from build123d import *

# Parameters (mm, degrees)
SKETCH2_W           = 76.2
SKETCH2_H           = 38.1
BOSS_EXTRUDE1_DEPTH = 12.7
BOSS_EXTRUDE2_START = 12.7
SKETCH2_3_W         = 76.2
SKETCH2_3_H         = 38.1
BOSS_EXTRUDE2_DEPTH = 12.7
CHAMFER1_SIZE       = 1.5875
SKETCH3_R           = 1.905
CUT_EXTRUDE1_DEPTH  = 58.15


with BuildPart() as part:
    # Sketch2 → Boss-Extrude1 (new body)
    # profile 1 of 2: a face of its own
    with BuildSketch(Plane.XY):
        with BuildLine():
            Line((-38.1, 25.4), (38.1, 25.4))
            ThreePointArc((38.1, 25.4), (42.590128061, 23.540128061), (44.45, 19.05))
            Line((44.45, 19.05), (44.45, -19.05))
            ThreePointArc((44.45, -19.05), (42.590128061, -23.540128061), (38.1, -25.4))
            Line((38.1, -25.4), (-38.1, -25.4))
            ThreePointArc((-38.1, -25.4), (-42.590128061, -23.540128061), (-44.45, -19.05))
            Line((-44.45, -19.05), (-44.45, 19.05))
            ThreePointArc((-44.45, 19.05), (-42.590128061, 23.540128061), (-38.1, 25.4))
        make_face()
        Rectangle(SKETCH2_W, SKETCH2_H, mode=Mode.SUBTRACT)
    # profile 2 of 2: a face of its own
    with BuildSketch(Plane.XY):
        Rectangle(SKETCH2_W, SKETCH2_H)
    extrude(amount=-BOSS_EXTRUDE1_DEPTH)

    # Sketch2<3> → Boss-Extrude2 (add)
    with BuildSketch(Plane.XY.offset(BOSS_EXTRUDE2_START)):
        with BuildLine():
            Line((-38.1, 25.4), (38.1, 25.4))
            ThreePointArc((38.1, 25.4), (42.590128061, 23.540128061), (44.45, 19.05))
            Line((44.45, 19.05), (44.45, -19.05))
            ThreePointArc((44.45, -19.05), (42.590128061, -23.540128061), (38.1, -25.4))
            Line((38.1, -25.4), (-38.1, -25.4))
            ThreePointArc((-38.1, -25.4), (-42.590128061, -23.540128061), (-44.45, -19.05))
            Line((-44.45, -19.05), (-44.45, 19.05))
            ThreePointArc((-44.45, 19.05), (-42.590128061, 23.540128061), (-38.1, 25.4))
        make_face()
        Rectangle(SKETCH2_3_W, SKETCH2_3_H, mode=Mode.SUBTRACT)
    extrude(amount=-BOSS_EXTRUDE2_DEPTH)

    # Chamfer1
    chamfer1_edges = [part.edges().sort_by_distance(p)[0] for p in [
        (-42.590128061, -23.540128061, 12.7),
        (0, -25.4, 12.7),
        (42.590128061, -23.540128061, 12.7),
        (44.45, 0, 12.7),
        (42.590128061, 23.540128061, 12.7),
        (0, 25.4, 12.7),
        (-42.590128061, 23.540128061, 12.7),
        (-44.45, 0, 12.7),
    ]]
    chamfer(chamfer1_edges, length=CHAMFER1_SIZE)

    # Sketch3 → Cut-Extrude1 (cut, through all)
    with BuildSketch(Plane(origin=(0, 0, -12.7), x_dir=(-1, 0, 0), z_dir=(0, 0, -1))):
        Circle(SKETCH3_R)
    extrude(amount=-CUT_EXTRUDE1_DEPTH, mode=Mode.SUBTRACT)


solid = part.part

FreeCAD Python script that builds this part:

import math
import FreeCAD as App
import Part
import Sketcher
from FreeCAD import Vector
Q = App.Units.Quantity


def edges_at(feature, points):
    """Names of the edges that pass closest to the given points."""
    edges = feature.Shape.Edges
    near = lambda p: min(range(len(edges)), key=lambda i: edges[i].distToShape(Part.Vertex(*p))[0])
    return sorted({f"Edge{near(p) + 1}" for p in points})

doc = App.newDocument("Part")
body = doc.addObject("PartDesign::Body", "Body")

# Sketch on XY plane
sketch1 = doc.addObject("Sketcher::SketchObject", "Sketch")
body.addObject(sketch1)
sketch1.AttachmentSupport = (doc.XY_Plane, [""])
sketch1.MapMode = "FlatFace"
sketch1.addGeometry([
    Part.LineSegment(Vector(38, 25, 0), Vector(-38, 25, 0)),  # 0
    Part.ArcOfCircle(Part.Circle(Vector(-38, 19, 0), Vector(0, 0, 1), 6), math.radians(90), math.radians(180)),  # 1
    Part.LineSegment(Vector(-44, 19, 0), Vector(-44, -19, 0)),  # 2
    Part.ArcOfCircle(Part.Circle(Vector(-38, -19, 0), Vector(0, 0, 1), 6), math.radians(180), math.radians(270)),  # 3
    Part.LineSegment(Vector(-38, -25, 0), Vector(38, -25, 0)),  # 4
    Part.ArcOfCircle(Part.Circle(Vector(38, -19, 0), Vector(0, 0, 1), 6), math.radians(-90), math.radians(0)),  # 5
    Part.LineSegment(Vector(44, -19, 0), Vector(44, 19, 0)),  # 6
    Part.ArcOfCircle(Part.Circle(Vector(38, 19, 0), Vector(0, 0, 1), 6), math.radians(0), math.radians(90)),  # 7
], False)
sketch1.addConstraint([
    Sketcher.Constraint("Tangent", 0, 2, 1, 1),
    Sketcher.Constraint("Tangent", 1, 2, 2, 1),
    Sketcher.Constraint("Tangent", 2, 2, 3, 1),
    Sketcher.Constraint("Tangent", 3, 2, 4, 1),
    Sketcher.Constraint("Tangent", 4, 2, 5, 1),
    Sketcher.Constraint("Tangent", 5, 2, 6, 1),
    Sketcher.Constraint("Tangent", 6, 2, 7, 1),
    Sketcher.Constraint("Tangent", 7, 2, 0, 1),
    Sketcher.Constraint("Horizontal", 0),
    Sketcher.Constraint("Vertical", 2),
    Sketcher.Constraint("Horizontal", 4),
    Sketcher.Constraint("Vertical", 6),
    Sketcher.Constraint("Equal", 1, 3),
    Sketcher.Constraint("Equal", 3, 5),
    Sketcher.Constraint("Equal", 5, 7),
    Sketcher.Constraint("Symmetric", 1, 3, 5, 3, -1, 1),
    Sketcher.Constraint("DistanceX", 0, 2, 0, 1, Q("3 in")),
    Sketcher.Constraint("Radius", 1, Q("0.25 in")),
    Sketcher.Constraint("DistanceY", 2, 2, 2, 1, Q("1.5 in")),
])
pad1 = doc.addObject("PartDesign::Pad", "Pad")
body.addObject(pad1)
pad1.Profile = sketch1
pad1.Length = Q("0.5 in")
pad1.Reversed = True

# Sketch on XY plane
sketch2 = doc.addObject("Sketcher::SketchObject", "Sketch001")
body.addObject(sketch2)
sketch2.AttachmentSupport = (doc.XY_Plane, [""])
sketch2.MapMode = "FlatFace"
sketch2.AttachmentOffset = App.Placement(Vector(0, 0, 0.5 * 25.4), App.Rotation())
sketch2.addGeometry([
    Part.LineSegment(Vector(38, 25, 0), Vector(-38, 25, 0)),  # 0
    Part.ArcOfCircle(Part.Circle(Vector(-38, 19, 0), Vector(0, 0, 1), 6), math.radians(90), math.radians(180)),  # 1
    Part.LineSegment(Vector(-44, 19, 0), Vector(-44, -19, 0)),  # 2
    Part.ArcOfCircle(Part.Circle(Vector(-38, -19, 0), Vector(0, 0, 1), 6), math.radians(180), math.radians(270)),  # 3
    Part.LineSegment(Vector(-38, -25, 0), Vector(38, -25, 0)),  # 4
    Part.ArcOfCircle(Part.Circle(Vector(38, -19, 0), Vector(0, 0, 1), 6), math.radians(-90), math.radians(0)),  # 5
    Part.LineSegment(Vector(44, -19, 0), Vector(44, 19, 0)),  # 6
    Part.ArcOfCircle(Part.Circle(Vector(38, 19, 0), Vector(0, 0, 1), 6), math.radians(0), math.radians(90)),  # 7
    Part.LineSegment(Vector(-38, -19, 0), Vector(-38, 19, 0)),  # 8
    Part.LineSegment(Vector(-38, 19, 0), Vector(38, 19, 0)),  # 9
    Part.LineSegment(Vector(38, 19, 0), Vector(38, -19, 0)),  # 10
    Part.LineSegment(Vector(38, -19, 0), Vector(-38, -19, 0)),  # 11
], False)
sketch2.addConstraint([
    Sketcher.Constraint("Tangent", 0, 2, 1, 1),
    Sketcher.Constraint("Tangent", 1, 2, 2, 1),
    Sketcher.Constraint("Tangent", 2, 2, 3, 1),
    Sketcher.Constraint("Tangent", 3, 2, 4, 1),
    Sketcher.Constraint("Tangent", 4, 2, 5, 1),
    Sketcher.Constraint("Tangent", 5, 2, 6, 1),
    Sketcher.Constraint("Tangent", 6, 2, 7, 1),
    Sketcher.Constraint("Tangent", 7, 2, 0, 1),
    Sketcher.Constraint("Coincident", 8, 2, 9, 1),
    Sketcher.Constraint("Coincident", 9, 2, 10, 1),
    Sketcher.Constraint("Coincident", 10, 2, 11, 1),
    Sketcher.Constraint("Coincident", 11, 2, 8, 1),
    Sketcher.Constraint("Horizontal", 0),
    Sketcher.Constraint("Vertical", 2),
    Sketcher.Constraint("Horizontal", 4),
    Sketcher.Constraint("Vertical", 6),
    Sketcher.Constraint("Vertical", 8),
    Sketcher.Constraint("Horizontal", 9),
    Sketcher.Constraint("Vertical", 10),
    Sketcher.Constraint("Horizontal", 11),
    Sketcher.Constraint("Coincident", 8, 2, 1, 3),
    Sketcher.Constraint("Coincident", 9, 2, 7, 3),
    Sketcher.Constraint("Coincident", 10, 2, 5, 3),
    Sketcher.Constraint("Equal", 1, 3),
    Sketcher.Constraint("Symmetric", 1, 3, 5, 3, -1, 1),
    Sketcher.Constraint("DistanceX", 0, 2, 0, 1, Q("3 in")),
    Sketcher.Constraint("Radius", 1, Q("0.25 in")),
    Sketcher.Constraint("DistanceY", 2, 2, 2, 1, Q("1.5 in")),
])
pad2 = doc.addObject("PartDesign::Pad", "Pad001")
body.addObject(pad2)
pad2.Profile = sketch2
pad2.Length = Q("0.5 in")
pad2.Reversed = True
doc.recompute()

chamfer = doc.addObject("PartDesign::Chamfer", "Chamfer")
body.addObject(chamfer)
chamfer.Base = (pad2, edges_at(pad2, [
    (-42.59, -23.54, 12.7),
    (0, -25.4, 12.7),
    (42.59, -23.54, 12.7),
    (44.45, 0, 12.7),
    (42.59, 23.54, 12.7),
    (0, 25.4, 12.7),
    (-42.59, 23.54, 12.7),
    (-44.45, 0, 12.7),
]))
chamfer.Size = Q("0.0625 in")

# Sketch on XY plane
sketch3 = doc.addObject("Sketcher::SketchObject", "Sketch002")
body.addObject(sketch3)
sketch3.AttachmentSupport = (doc.XY_Plane, [""])
sketch3.MapMode = "FlatFace"
sketch3.AttachmentOffset = App.Placement(Vector(0, 0, -0.5 * 25.4), App.Rotation())
sketch3.addGeometry(Part.Circle(Vector(0, 0, 0), Vector(0, 0, 1), 1.9), False)
sketch3.addConstraint([
    Sketcher.Constraint("Coincident", 0, 3, -1, 1),
    Sketcher.Constraint("Diameter", 0, Q("0.15 in")),
])
pocket1 = doc.addObject("PartDesign::Pocket", "Pocket")
body.addObject(pocket1)
pocket1.Profile = sketch3
pocket1.Type = "ThroughAll"
pocket1.Reversed = True

doc.recompute()
